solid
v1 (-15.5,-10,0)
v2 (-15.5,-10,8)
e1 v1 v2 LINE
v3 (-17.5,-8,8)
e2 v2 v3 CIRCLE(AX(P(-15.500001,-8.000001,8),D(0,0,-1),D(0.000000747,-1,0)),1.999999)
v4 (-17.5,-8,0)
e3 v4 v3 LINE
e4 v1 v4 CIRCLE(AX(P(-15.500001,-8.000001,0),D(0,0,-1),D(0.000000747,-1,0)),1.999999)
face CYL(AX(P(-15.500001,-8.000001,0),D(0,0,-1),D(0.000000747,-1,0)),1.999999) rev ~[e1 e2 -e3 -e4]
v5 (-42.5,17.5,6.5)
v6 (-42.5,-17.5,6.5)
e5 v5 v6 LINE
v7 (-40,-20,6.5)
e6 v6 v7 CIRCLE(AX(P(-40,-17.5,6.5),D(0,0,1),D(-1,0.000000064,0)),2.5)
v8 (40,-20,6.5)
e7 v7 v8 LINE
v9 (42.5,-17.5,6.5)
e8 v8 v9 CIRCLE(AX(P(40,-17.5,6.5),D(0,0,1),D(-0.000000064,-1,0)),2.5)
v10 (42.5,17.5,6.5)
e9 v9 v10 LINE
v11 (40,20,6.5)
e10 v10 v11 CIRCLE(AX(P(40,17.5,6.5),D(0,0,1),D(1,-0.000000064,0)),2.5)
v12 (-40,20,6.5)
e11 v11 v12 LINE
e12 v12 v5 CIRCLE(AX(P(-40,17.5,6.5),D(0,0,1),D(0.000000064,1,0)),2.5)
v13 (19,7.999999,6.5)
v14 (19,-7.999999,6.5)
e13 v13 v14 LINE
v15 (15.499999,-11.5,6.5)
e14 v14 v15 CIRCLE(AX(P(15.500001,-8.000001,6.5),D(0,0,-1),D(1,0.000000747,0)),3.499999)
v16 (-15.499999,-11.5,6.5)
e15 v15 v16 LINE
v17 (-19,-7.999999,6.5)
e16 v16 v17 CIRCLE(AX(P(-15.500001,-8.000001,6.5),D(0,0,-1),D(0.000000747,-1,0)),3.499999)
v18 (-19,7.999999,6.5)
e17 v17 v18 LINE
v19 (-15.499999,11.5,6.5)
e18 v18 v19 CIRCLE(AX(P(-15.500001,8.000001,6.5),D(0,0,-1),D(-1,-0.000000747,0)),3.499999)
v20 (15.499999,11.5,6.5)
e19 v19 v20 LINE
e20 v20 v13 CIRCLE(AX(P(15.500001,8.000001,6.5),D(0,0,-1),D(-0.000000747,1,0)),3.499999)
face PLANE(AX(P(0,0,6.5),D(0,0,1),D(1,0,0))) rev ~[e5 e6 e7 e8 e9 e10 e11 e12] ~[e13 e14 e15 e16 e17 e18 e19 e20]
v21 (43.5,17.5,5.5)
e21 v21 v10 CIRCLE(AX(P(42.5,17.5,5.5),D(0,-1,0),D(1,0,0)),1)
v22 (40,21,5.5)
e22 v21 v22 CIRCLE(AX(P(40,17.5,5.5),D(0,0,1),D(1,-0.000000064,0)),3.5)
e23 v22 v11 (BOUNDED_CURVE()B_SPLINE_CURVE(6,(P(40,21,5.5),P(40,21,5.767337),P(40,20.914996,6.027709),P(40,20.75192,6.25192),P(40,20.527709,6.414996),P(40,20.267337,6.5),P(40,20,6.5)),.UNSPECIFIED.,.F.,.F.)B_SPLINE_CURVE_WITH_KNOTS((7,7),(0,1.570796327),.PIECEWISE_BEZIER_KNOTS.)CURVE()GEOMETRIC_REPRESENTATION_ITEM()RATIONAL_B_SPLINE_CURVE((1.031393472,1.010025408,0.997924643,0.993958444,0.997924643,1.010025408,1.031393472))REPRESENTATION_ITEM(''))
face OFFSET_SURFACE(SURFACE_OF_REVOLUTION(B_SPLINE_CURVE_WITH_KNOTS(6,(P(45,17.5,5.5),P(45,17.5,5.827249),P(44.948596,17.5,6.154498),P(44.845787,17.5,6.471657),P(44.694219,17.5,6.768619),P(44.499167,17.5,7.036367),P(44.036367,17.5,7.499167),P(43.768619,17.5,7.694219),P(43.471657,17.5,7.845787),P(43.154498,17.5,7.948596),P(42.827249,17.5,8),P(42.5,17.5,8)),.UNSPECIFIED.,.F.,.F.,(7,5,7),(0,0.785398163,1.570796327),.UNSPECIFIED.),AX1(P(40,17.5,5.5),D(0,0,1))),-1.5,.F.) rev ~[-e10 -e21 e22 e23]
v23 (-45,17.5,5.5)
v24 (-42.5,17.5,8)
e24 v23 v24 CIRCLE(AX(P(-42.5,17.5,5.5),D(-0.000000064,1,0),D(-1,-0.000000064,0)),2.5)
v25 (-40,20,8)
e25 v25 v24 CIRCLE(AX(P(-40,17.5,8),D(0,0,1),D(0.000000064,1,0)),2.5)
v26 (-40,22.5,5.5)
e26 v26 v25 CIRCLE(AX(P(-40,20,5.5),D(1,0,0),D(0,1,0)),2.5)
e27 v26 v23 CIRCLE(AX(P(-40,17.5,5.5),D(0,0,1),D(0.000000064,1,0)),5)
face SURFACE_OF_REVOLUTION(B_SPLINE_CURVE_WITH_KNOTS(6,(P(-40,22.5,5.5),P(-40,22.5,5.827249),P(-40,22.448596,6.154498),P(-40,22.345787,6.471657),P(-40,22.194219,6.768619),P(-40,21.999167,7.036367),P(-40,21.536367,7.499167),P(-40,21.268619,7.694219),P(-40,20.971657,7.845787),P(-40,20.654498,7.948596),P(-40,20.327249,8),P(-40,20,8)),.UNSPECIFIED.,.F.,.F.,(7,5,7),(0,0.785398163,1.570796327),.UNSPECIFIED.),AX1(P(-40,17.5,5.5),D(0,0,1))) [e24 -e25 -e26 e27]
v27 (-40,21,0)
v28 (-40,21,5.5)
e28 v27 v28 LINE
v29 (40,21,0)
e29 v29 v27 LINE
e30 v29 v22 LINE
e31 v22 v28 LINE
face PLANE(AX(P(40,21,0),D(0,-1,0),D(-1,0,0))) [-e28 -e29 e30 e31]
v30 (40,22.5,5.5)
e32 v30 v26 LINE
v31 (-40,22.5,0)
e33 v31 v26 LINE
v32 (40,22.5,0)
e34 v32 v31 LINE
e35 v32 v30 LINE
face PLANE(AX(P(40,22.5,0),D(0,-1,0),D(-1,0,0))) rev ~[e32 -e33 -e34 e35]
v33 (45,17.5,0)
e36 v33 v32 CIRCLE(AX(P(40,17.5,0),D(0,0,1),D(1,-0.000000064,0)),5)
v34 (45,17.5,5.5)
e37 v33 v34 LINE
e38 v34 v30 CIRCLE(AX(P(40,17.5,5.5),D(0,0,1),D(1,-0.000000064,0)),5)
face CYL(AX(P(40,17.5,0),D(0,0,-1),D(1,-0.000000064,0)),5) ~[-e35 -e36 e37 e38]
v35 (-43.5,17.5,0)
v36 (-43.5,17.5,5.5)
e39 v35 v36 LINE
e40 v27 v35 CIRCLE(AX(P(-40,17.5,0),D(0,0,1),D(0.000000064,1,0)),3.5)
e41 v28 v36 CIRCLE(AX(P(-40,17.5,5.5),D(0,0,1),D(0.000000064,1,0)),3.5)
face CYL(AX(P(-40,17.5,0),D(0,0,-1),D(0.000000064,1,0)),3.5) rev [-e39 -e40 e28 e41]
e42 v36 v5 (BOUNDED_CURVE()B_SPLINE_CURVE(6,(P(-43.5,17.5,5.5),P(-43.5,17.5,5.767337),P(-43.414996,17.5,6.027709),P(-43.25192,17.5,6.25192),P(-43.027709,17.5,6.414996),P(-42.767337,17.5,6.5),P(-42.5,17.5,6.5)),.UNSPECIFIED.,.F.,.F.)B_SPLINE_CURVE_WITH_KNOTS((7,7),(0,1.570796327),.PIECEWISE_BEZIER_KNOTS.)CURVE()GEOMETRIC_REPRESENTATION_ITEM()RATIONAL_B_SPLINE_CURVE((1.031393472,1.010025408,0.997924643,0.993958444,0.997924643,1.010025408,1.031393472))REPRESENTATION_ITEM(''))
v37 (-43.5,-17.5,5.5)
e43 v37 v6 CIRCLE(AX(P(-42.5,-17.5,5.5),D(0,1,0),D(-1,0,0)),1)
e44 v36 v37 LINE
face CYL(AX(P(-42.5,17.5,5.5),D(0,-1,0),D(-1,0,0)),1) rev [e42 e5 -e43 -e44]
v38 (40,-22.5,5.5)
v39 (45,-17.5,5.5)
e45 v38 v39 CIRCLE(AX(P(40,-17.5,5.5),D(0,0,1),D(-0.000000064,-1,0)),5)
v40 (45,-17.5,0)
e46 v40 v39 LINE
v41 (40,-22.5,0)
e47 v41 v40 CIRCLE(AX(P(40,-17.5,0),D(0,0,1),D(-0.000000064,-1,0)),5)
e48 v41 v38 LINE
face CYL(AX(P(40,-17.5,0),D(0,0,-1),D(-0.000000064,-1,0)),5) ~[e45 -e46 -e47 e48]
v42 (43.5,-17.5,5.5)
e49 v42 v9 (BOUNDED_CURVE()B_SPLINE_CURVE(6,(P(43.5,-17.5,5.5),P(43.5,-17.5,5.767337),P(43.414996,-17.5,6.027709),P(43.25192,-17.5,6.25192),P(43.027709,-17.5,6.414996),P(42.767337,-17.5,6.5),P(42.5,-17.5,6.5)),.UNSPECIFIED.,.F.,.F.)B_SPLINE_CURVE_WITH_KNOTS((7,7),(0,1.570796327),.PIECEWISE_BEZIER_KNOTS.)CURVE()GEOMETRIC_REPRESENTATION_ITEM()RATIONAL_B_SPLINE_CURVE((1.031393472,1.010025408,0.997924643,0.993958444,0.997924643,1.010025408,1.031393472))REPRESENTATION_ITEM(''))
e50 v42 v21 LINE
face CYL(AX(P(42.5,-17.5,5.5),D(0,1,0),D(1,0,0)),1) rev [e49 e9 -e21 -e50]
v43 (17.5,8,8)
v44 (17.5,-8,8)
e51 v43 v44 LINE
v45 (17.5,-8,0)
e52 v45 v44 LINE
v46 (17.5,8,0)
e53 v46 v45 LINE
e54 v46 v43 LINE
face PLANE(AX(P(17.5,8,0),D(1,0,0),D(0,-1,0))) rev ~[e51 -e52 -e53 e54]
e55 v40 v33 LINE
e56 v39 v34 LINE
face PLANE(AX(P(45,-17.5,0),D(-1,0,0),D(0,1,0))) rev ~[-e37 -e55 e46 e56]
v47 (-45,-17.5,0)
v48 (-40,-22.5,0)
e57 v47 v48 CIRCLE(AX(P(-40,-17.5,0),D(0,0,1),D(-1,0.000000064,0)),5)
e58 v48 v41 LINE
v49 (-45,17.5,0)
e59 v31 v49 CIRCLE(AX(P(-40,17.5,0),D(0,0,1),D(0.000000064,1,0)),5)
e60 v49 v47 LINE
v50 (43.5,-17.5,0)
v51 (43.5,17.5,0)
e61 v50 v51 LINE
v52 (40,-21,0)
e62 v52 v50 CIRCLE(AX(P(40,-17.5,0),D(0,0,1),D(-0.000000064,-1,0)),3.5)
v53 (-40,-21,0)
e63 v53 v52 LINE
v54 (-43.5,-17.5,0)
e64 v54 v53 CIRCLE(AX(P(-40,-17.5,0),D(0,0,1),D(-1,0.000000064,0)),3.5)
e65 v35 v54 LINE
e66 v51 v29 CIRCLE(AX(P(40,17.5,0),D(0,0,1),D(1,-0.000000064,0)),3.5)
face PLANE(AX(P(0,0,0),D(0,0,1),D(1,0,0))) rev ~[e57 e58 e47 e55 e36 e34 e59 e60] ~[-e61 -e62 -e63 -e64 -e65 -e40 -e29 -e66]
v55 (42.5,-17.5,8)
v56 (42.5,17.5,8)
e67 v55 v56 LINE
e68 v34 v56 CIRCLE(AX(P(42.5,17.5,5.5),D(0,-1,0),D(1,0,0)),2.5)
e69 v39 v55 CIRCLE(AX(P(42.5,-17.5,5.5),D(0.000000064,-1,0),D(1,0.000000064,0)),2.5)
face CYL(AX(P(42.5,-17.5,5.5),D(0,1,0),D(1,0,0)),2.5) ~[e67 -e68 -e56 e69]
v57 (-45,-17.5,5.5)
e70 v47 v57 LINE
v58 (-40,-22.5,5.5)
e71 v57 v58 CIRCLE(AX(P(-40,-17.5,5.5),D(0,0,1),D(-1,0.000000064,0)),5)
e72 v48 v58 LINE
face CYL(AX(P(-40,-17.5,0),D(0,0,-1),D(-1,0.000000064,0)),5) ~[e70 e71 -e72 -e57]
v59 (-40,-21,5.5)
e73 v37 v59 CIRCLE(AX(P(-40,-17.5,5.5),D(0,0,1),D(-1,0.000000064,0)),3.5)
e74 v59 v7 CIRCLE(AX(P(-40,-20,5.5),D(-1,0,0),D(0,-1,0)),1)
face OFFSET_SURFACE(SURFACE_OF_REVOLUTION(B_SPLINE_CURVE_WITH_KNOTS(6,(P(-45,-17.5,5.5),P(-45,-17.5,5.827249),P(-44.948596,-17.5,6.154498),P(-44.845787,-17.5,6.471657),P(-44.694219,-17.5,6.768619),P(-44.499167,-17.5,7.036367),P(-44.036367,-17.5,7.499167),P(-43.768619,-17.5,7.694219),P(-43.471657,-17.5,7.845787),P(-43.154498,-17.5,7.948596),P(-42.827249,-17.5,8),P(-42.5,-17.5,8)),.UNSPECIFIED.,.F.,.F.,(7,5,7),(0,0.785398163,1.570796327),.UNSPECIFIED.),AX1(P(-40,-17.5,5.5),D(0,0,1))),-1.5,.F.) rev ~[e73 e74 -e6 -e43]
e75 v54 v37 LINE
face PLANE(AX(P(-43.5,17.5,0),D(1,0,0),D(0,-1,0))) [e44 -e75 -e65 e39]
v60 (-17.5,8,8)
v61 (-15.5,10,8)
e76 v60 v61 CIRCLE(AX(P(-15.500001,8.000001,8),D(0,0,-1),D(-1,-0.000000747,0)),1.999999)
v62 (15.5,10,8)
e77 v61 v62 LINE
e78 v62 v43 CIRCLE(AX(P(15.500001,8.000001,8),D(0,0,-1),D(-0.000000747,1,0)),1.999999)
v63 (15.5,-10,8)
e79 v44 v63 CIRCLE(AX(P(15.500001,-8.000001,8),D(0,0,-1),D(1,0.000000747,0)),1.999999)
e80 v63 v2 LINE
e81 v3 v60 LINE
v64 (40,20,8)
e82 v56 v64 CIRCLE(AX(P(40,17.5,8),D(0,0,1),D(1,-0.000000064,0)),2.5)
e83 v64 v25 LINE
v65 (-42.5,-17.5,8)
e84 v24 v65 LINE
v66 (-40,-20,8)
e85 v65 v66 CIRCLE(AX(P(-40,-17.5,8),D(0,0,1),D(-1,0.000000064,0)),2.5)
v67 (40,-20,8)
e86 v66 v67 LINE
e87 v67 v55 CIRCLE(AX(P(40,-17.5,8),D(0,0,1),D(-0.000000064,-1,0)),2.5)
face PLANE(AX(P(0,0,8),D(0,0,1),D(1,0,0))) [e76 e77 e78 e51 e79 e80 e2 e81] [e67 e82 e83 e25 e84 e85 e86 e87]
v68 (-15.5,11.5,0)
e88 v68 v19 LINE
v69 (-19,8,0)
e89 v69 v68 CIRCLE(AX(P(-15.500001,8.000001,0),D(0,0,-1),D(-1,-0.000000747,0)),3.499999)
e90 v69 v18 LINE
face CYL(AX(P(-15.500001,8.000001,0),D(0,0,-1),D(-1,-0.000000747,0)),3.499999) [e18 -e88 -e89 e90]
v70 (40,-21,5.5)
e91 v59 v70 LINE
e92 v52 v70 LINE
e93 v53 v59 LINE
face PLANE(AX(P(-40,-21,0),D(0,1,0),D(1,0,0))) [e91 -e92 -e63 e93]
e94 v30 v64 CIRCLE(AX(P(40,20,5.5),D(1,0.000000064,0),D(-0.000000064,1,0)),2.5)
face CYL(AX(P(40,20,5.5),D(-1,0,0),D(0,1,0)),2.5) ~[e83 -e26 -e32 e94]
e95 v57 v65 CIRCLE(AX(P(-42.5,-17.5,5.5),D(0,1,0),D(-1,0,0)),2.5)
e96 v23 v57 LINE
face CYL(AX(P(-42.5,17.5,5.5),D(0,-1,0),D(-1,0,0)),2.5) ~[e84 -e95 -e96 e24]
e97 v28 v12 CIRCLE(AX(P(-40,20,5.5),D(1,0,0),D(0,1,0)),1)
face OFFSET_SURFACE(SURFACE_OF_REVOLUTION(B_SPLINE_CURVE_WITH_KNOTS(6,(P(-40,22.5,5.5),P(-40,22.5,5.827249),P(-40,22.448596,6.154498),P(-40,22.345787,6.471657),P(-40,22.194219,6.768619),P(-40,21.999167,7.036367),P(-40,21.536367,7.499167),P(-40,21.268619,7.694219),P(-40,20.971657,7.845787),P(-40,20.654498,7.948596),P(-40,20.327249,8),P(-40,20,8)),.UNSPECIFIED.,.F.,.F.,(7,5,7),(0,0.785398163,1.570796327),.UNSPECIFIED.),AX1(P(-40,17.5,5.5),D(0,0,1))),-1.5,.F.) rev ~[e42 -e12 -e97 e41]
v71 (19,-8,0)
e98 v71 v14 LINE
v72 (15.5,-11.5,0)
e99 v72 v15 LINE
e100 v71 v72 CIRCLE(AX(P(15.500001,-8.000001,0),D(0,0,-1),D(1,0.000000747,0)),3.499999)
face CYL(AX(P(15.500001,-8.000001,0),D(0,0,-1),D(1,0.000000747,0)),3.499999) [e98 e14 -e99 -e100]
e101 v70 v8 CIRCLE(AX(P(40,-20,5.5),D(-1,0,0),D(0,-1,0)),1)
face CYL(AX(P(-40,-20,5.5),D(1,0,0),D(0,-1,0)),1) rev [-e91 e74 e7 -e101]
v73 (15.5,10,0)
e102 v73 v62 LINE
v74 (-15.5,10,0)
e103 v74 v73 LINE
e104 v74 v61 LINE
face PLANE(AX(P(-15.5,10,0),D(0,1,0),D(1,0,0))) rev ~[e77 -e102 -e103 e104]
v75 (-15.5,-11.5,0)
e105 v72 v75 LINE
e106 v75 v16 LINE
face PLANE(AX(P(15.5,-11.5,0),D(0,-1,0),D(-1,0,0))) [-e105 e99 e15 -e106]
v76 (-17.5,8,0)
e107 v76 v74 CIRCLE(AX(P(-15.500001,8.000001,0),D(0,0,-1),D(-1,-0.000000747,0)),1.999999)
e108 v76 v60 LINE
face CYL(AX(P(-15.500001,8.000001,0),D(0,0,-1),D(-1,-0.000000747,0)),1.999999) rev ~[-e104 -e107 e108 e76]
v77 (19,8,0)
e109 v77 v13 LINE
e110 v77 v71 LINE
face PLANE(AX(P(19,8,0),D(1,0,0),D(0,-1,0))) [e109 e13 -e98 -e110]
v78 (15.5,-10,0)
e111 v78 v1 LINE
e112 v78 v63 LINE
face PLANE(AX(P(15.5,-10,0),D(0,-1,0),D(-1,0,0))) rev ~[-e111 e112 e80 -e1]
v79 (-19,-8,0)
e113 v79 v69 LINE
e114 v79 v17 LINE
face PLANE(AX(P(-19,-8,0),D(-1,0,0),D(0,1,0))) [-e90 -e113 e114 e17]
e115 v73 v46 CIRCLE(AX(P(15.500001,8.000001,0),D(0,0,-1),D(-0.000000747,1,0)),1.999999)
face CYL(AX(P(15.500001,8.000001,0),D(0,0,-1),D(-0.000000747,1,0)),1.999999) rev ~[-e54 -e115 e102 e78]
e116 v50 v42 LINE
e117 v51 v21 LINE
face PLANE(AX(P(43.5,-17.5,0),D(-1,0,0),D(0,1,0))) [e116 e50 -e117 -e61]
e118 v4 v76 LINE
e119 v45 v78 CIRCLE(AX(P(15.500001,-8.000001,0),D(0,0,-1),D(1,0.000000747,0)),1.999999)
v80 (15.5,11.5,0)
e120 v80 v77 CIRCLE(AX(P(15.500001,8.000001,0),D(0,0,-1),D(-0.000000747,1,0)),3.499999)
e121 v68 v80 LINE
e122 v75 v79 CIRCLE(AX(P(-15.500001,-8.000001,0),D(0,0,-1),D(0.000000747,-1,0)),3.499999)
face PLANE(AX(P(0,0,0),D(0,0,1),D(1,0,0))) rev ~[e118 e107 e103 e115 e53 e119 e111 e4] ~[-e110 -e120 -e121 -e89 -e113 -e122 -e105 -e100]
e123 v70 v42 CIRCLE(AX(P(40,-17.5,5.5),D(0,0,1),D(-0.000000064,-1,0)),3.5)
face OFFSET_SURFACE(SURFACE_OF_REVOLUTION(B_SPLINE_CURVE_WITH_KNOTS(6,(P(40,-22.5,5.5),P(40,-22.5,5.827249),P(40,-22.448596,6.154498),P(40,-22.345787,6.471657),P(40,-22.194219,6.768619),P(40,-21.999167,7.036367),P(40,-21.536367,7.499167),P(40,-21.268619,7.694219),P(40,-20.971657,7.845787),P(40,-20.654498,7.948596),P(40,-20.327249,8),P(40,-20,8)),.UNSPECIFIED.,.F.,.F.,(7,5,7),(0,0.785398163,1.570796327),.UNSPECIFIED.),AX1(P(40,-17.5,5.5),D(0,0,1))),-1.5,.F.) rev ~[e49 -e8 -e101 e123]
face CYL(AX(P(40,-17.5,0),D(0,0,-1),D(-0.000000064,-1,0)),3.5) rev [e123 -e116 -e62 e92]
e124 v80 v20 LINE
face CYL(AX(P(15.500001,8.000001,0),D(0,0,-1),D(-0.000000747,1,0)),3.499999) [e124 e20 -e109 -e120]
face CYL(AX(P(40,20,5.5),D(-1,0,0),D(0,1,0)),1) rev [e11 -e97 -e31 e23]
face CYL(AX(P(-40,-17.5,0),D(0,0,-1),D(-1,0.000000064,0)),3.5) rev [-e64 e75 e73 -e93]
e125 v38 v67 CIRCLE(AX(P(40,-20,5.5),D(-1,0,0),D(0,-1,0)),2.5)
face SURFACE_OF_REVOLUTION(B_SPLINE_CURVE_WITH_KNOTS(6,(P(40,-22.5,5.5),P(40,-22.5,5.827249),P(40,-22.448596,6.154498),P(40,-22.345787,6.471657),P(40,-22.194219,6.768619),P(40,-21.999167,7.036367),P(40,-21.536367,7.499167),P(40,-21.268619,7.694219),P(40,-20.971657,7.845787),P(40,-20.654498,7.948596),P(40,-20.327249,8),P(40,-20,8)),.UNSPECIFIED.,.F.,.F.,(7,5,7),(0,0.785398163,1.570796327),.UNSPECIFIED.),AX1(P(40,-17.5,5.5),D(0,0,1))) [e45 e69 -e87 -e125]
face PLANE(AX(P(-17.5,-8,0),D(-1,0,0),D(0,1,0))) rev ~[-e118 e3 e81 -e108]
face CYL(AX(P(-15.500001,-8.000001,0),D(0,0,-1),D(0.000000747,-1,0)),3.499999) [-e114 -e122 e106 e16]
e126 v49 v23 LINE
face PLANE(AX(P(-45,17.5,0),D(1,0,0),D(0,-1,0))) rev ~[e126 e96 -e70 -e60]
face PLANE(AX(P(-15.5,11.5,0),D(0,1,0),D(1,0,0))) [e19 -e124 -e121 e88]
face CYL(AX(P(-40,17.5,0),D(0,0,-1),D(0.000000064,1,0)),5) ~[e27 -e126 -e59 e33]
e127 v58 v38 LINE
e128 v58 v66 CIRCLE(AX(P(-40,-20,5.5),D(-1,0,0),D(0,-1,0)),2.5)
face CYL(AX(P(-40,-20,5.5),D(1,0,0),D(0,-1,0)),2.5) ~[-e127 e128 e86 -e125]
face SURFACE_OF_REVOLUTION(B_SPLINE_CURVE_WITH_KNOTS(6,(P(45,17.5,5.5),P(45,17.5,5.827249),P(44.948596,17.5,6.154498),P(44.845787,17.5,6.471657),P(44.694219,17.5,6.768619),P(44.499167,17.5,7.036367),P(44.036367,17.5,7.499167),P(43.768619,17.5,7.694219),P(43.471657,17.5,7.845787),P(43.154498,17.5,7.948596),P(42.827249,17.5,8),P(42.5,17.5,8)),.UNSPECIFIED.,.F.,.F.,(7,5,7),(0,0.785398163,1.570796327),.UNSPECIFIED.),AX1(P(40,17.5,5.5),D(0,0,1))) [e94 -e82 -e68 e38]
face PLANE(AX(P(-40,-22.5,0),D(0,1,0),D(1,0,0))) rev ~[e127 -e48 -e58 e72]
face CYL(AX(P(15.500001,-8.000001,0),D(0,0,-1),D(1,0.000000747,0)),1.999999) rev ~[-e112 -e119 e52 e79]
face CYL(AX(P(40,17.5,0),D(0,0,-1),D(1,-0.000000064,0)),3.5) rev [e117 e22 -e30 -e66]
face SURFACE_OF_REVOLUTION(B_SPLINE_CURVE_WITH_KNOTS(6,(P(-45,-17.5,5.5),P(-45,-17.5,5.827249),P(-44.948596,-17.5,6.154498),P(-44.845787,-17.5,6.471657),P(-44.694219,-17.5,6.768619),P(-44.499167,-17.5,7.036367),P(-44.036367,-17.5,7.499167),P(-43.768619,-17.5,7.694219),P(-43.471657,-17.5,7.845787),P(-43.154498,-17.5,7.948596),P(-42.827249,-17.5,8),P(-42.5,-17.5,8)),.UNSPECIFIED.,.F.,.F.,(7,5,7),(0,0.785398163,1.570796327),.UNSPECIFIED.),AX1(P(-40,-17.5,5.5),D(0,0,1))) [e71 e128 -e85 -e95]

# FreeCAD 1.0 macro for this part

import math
import FreeCAD as App
import Part
import Sketcher
from FreeCAD import Vector


def edges_at(feature, points):
    """Names of the edges that pass closest to the given points."""
    edges = feature.Shape.Edges
    near = lambda p: min(range(len(edges)), key=lambda i: edges[i].distToShape(Part.Vertex(*p))[0])
    return sorted({f"Edge{near(p) + 1}" for p in points})


def faces_at(feature, points):
    """Names of the faces that lie closest to the given points."""
    faces = feature.Shape.Faces
    near = lambda p: min(range(len(faces)), key=lambda i: faces[i].distToShape(Part.Vertex(*p))[0])
    return sorted({f"Face{near(p) + 1}" for p in points})

doc = App.newDocument("Part")
body = doc.addObject("PartDesign::Body", "Body")

# Sketch on XY plane
sketch1 = body.newObject("Sketcher::SketchObject", "Sketch")
sketch1.AttachmentSupport = (doc.getObject("XY_Plane"), [""])
sketch1.MapMode = "FlatFace"
sketch1.addGeometry([
    Part.LineSegment(Vector(40, 22.5, 0), Vector(-40, 22.5, 0)),  # 0
    Part.ArcOfCircle(Part.Circle(Vector(-40, 17.5, 0), Vector(0, 0, 1), 5), math.radians(90), math.radians(180)),  # 1
    Part.LineSegment(Vector(-45, 17.5, 0), Vector(-45, -17.5, 0)),  # 2
    Part.ArcOfCircle(Part.Circle(Vector(-40, -17.5, 0), Vector(0, 0, 1), 5), math.radians(180), math.radians(270)),  # 3
    Part.LineSegment(Vector(-40, -22.5, 0), Vector(40, -22.5, 0)),  # 4
    Part.ArcOfCircle(Part.Circle(Vector(40, -17.5, 0), Vector(0, 0, 1), 5), math.radians(-90), math.radians(0)),  # 5
    Part.LineSegment(Vector(45, -17.5, 0), Vector(45, 17.5, 0)),  # 6
    Part.ArcOfCircle(Part.Circle(Vector(40, 17.5, 0), Vector(0, 0, 1), 5), math.radians(0), math.radians(90)),  # 7
    Part.LineSegment(Vector(-17.5, -8, 0), Vector(-17.5, 8, 0)),  # 8
    Part.ArcOfCircle(Part.Circle(Vector(-15.5, 8, 0), Vector(0, 0, 1), 2), math.radians(90), math.radians(180)),  # 9
    Part.LineSegment(Vector(-15.5, 10, 0), Vector(15.5, 10, 0)),  # 10
    Part.ArcOfCircle(Part.Circle(Vector(15.5, 8, 0), Vector(0, 0, 1), 2), math.radians(0), math.radians(90)),  # 11
    Part.LineSegment(Vector(17.5, 8, 0), Vector(17.5, -8, 0)),  # 12
    Part.ArcOfCircle(Part.Circle(Vector(15.5, -8, 0), Vector(0, 0, 1), 2), math.radians(-90), math.radians(0)),  # 13
    Part.LineSegment(Vector(15.5, -10, 0), Vector(-15.5, -10, 0)),  # 14
    Part.ArcOfCircle(Part.Circle(Vector(-15.5, -8, 0), Vector(0, 0, 1), 2), math.radians(180), math.radians(270)),  # 15
], False)
sketch1.addConstraint([
    Sketcher.Constraint("Tangent", 0, 2, 1, 1),
    Sketcher.Constraint("Tangent", 1, 2, 2, 1),
    Sketcher.Constraint("Tangent", 2, 2, 3, 1),
    Sketcher.Constraint("Tangent", 3, 2, 4, 1),
    Sketcher.Constraint("Tangent", 4, 2, 5, 1),
    Sketcher.Constraint("Tangent", 5, 2, 6, 1),
    Sketcher.Constraint("Tangent", 6, 2, 7, 1),
    Sketcher.Constraint("Tangent", 7, 2, 0, 1),
    Sketcher.Constraint("Tangent", 8, 2, 9, 2),
    Sketcher.Constraint("Tangent", 9, 1, 10, 1),
    Sketcher.Constraint("Tangent", 10, 2, 11, 2),
    Sketcher.Constraint("Tangent", 11, 1, 12, 1),
    Sketcher.Constraint("Tangent", 12, 2, 13, 2),
    Sketcher.Constraint("Tangent", 13, 1, 14, 1),
    Sketcher.Constraint("Tangent", 14, 2, 15, 2),
    Sketcher.Constraint("Tangent", 15, 1, 8, 1),
    Sketcher.Constraint("Horizontal", 0),
    Sketcher.Constraint("Vertical", 2),
    Sketcher.Constraint("Horizontal", 4),
    Sketcher.Constraint("Vertical", 6),
    Sketcher.Constraint("Vertical", 8),
    Sketcher.Constraint("Horizontal", 10),
    Sketcher.Constraint("Vertical", 12),
    Sketcher.Constraint("Horizontal", 14),
    Sketcher.Constraint("Equal", 1, 3),
    Sketcher.Constraint("Equal", 3, 5),
    Sketcher.Constraint("Equal", 5, 7),
    Sketcher.Constraint("Equal", 9, 11),
    Sketcher.Constraint("Equal", 11, 13),
    Sketcher.Constraint("Equal", 13, 15),
    Sketcher.Constraint("Symmetric", 1, 3, 5, 3, -1, 1),
    Sketcher.Constraint("Symmetric", 9, 3, 13, 3, -1, 1),
    Sketcher.Constraint("Radius", 1, 5.0),
    Sketcher.Constraint("Radius", 9, 1.999999),
    Sketcher.Constraint("DistanceX", 0, 2, 0, 1, 80.0),
    Sketcher.Constraint("DistanceX", 10, 1, 10, 2, 31.0),
    Sketcher.Constraint("DistanceY", 2, 2, 2, 1, 35.0),
    Sketcher.Constraint("DistanceY", 8, 1, 8, 2, 16.0),
])
pad1 = body.newObject("PartDesign::Pad", "Pad")
pad1.Profile = sketch1
pad1.Length = 8
doc.recompute()

fillet = body.newObject("PartDesign::Fillet", "Fillet")
fillet.Base = (pad1, edges_at(pad1, [(0, -22.5, 8)]))
fillet.Radius = 2.5
doc.recompute()

thickness = body.newObject("PartDesign::Thickness", "Thickness")
thickness.Base = (fillet, faces_at(fillet, [(-18, -9, 0)]))
thickness.Value = 1.5
thickness.Reversed = True
thickness.Join = "Arc"

doc.recompute()
